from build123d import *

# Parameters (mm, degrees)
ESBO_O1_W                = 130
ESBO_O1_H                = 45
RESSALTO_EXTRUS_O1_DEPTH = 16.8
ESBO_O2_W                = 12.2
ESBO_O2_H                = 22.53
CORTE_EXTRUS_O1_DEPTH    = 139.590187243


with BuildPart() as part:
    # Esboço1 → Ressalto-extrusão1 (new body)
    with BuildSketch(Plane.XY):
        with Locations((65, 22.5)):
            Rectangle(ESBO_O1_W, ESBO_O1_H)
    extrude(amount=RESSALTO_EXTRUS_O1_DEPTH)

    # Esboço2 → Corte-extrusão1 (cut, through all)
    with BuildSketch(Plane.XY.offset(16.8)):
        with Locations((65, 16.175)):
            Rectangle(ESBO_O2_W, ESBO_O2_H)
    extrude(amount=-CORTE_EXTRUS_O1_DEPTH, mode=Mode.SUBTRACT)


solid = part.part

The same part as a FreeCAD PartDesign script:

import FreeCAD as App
import Part
import Sketcher


def add_polygon(sketch, points):
    """Adds a closed chain of lines whose ends are joined by coincident constraints."""
    first, n = sketch.GeometryCount, len(points)
    for a, b in zip(points, points[1:] + points[:1]):
        sketch.addGeometry(Part.LineSegment(App.Vector(*a, 0), App.Vector(*b, 0)), False)
    for i in range(n):
        sketch.addConstraint(Sketcher.Constraint("Coincident", first + i, 2, first + (i + 1) % n, 1))

doc = App.newDocument("Part")
body = doc.addObject("PartDesign::Body", "Body")

sketch1 = body.newObject("Sketcher::SketchObject", "Sketch")
sketch1.AttachmentSupport = (doc.getObject("XY_Plane"), [""])
sketch1.MapMode = "FlatFace"
add_polygon(sketch1, [(0, 45), (0, 0), (130, 0), (130, 45)])
sketch1.addConstraint(Sketcher.Constraint("Vertical", 0))
sketch1.addConstraint(Sketcher.Constraint("Horizontal", 1))
sketch1.addConstraint(Sketcher.Constraint("Vertical", 2))
sketch1.addConstraint(Sketcher.Constraint("Horizontal", 3))
sketch1.addConstraint(Sketcher.Constraint("Coincident", 0, 2, -1, 1))
sketch1.addConstraint(Sketcher.Constraint("DistanceX", 1, 1, 1, 2, 130.0))
sketch1.addConstraint(Sketcher.Constraint("DistanceY", 0, 2, 0, 1, 45.0))
pad1 = body.newObject("PartDesign::Pad", "Pad")
pad1.Profile = sketch1
pad1.Length = 16.8

sketch2 = body.newObject("Sketcher::SketchObject", "Sketch001")
sketch2.AttachmentSupport = (doc.getObject("XY_Plane"), [""])
sketch2.MapMode = "FlatFace"
sketch2.AttachmentOffset = App.Placement(App.Vector(0, 0, 16.8), App.Rotation())
add_polygon(sketch2, [(59, 27), (59, 5), (71, 5), (71, 27)])
sketch2.addConstraint(Sketcher.Constraint("Vertical", 0))
sketch2.addConstraint(Sketcher.Constraint("Horizontal", 1))
sketch2.addConstraint(Sketcher.Constraint("Vertical", 2))
sketch2.addConstraint(Sketcher.Constraint("Horizontal", 3))
sketch2.addConstraint(Sketcher.Constraint("DistanceX", 1, 1, 1, 2, 12.2))
sketch2.addConstraint(Sketcher.Constraint("DistanceY", 0, 2, 0, 1, 22.53))
sketch2.addConstraint(Sketcher.Constraint("DistanceX", -1, 1, 0, 2, 58.9))
sketch2.addConstraint(Sketcher.Constraint("DistanceY", -1, 1, 0, 2, 4.91))
pocket1 = body.newObject("PartDesign::Pocket", "Pocket")
pocket1.Profile = sketch2
pocket1.Type = "ThroughAll"

doc.recompute()
